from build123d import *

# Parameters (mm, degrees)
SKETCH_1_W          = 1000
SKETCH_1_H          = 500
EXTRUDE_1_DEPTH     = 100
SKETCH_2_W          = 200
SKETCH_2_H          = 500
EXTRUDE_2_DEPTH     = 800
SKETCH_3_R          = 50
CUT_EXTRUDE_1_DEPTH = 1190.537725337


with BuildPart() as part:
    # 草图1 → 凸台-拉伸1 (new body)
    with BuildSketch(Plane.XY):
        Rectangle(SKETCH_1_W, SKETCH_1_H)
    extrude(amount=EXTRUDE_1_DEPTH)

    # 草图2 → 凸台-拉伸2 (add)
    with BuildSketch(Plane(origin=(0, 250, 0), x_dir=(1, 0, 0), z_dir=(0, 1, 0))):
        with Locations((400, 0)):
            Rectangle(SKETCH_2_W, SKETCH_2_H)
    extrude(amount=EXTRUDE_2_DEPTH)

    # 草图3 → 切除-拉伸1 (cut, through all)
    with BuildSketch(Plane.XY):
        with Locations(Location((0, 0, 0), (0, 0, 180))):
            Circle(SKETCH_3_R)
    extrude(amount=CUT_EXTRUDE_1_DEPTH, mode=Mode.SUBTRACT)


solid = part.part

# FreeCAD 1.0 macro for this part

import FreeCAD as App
import Part
import Sketcher
from FreeCAD import Vector
Q = App.Units.Quantity


def add_polygon(sketch, points):
    """Adds a closed chain of lines whose ends are joined by coincident constraints."""
    first, n = sketch.GeometryCount, len(points)
    for a, b in zip(points, points[1:] + points[:1]):
        sketch.addGeometry(Part.LineSegment(App.Vector(*a, 0), App.Vector(*b, 0)), False)
    for i in range(n):
        sketch.addConstraint(Sketcher.Constraint("Coincident", first + i, 2, first + (i + 1) % n, 1))

doc = App.newDocument("Part")
body = doc.addObject("PartDesign::Body", "Body")

# Sketch on XY plane
sketch1 = doc.addObject("Sketcher::SketchObject", "Sketch")
body.addObject(sketch1)
sketch1.AttachmentSupport = (doc.XY_Plane, [""])
sketch1.MapMode = "FlatFace"
add_polygon(sketch1, [(-500, 250), (-500, -250), (500, -250), (500, 250)])  # lines 0-3
sketch1.addConstraint(Sketcher.Constraint("Vertical", 0))
sketch1.addConstraint(Sketcher.Constraint("Horizontal", 1))
sketch1.addConstraint(Sketcher.Constraint("Vertical", 2))
sketch1.addConstraint(Sketcher.Constraint("Horizontal", 3))
sketch1.addConstraint(Sketcher.Constraint("Symmetric", 0, 2, 2, 2, -1, 1))
sketch1.addConstraint(Sketcher.Constraint("DistanceX", 1, 1, 1, 2, Q("1000 mm")))
sketch1.addConstraint(Sketcher.Constraint("DistanceY", 0, 2, 0, 1, Q("500 mm")))
pad1 = doc.addObject("PartDesign::Pad", "Pad")
body.addObject(pad1)
pad1.Profile = sketch1
pad1.Length = 100

# Sketch on XZ plane
sketch2 = doc.addObject("Sketcher::SketchObject", "Sketch001")
body.addObject(sketch2)
sketch2.AttachmentSupport = (doc.XZ_Plane, [""])
sketch2.MapMode = "FlatFace"
sketch2.AttachmentOffset = App.Placement(Vector(0, 0, -250), App.Rotation())
add_polygon(sketch2, [(300, -250), (300, 250), (500, 250), (500, -250)])  # lines 0-3
sketch2.addConstraint(Sketcher.Constraint("Vertical", 0))
sketch2.addConstraint(Sketcher.Constraint("Horizontal", 1))
sketch2.addConstraint(Sketcher.Constraint("Vertical", 2))
sketch2.addConstraint(Sketcher.Constraint("Horizontal", 3))
sketch2.addConstraint(Sketcher.Constraint("DistanceX", 1, 1, 1, 2, Q("200 mm")))
sketch2.addConstraint(Sketcher.Constraint("DistanceY", 0, 1, 0, 2, Q("500 mm")))
sketch2.addConstraint(Sketcher.Constraint("DistanceX", -1, 1, 0, 2, Q("300 mm")))
sketch2.addConstraint(Sketcher.Constraint("DistanceY", -1, 1, 0, 2, Q("250 mm")))
pad2 = doc.addObject("PartDesign::Pad", "Pad001")
body.addObject(pad2)
pad2.Profile = sketch2
pad2.Length = 800
pad2.Reversed = True

# Sketch on XY plane
sketch3 = doc.addObject("Sketcher::SketchObject", "Sketch002")
body.addObject(sketch3)
sketch3.AttachmentSupport = (doc.XY_Plane, [""])
sketch3.MapMode = "FlatFace"
sketch3.addGeometry(Part.Circle(Vector(0, 0, 0), Vector(0, 0, 1), 50), False)
sketch3.addConstraint(Sketcher.Constraint("Coincident", 0, 3, -1, 1))
sketch3.addConstraint(Sketcher.Constraint("Diameter", 0, Q("100 mm")))
pocket1 = doc.addObject("PartDesign::Pocket", "Pocket")
body.addObject(pocket1)
pocket1.Profile = sketch3
pocket1.Type = "ThroughAll"
pocket1.Reversed = True

doc.recompute()
